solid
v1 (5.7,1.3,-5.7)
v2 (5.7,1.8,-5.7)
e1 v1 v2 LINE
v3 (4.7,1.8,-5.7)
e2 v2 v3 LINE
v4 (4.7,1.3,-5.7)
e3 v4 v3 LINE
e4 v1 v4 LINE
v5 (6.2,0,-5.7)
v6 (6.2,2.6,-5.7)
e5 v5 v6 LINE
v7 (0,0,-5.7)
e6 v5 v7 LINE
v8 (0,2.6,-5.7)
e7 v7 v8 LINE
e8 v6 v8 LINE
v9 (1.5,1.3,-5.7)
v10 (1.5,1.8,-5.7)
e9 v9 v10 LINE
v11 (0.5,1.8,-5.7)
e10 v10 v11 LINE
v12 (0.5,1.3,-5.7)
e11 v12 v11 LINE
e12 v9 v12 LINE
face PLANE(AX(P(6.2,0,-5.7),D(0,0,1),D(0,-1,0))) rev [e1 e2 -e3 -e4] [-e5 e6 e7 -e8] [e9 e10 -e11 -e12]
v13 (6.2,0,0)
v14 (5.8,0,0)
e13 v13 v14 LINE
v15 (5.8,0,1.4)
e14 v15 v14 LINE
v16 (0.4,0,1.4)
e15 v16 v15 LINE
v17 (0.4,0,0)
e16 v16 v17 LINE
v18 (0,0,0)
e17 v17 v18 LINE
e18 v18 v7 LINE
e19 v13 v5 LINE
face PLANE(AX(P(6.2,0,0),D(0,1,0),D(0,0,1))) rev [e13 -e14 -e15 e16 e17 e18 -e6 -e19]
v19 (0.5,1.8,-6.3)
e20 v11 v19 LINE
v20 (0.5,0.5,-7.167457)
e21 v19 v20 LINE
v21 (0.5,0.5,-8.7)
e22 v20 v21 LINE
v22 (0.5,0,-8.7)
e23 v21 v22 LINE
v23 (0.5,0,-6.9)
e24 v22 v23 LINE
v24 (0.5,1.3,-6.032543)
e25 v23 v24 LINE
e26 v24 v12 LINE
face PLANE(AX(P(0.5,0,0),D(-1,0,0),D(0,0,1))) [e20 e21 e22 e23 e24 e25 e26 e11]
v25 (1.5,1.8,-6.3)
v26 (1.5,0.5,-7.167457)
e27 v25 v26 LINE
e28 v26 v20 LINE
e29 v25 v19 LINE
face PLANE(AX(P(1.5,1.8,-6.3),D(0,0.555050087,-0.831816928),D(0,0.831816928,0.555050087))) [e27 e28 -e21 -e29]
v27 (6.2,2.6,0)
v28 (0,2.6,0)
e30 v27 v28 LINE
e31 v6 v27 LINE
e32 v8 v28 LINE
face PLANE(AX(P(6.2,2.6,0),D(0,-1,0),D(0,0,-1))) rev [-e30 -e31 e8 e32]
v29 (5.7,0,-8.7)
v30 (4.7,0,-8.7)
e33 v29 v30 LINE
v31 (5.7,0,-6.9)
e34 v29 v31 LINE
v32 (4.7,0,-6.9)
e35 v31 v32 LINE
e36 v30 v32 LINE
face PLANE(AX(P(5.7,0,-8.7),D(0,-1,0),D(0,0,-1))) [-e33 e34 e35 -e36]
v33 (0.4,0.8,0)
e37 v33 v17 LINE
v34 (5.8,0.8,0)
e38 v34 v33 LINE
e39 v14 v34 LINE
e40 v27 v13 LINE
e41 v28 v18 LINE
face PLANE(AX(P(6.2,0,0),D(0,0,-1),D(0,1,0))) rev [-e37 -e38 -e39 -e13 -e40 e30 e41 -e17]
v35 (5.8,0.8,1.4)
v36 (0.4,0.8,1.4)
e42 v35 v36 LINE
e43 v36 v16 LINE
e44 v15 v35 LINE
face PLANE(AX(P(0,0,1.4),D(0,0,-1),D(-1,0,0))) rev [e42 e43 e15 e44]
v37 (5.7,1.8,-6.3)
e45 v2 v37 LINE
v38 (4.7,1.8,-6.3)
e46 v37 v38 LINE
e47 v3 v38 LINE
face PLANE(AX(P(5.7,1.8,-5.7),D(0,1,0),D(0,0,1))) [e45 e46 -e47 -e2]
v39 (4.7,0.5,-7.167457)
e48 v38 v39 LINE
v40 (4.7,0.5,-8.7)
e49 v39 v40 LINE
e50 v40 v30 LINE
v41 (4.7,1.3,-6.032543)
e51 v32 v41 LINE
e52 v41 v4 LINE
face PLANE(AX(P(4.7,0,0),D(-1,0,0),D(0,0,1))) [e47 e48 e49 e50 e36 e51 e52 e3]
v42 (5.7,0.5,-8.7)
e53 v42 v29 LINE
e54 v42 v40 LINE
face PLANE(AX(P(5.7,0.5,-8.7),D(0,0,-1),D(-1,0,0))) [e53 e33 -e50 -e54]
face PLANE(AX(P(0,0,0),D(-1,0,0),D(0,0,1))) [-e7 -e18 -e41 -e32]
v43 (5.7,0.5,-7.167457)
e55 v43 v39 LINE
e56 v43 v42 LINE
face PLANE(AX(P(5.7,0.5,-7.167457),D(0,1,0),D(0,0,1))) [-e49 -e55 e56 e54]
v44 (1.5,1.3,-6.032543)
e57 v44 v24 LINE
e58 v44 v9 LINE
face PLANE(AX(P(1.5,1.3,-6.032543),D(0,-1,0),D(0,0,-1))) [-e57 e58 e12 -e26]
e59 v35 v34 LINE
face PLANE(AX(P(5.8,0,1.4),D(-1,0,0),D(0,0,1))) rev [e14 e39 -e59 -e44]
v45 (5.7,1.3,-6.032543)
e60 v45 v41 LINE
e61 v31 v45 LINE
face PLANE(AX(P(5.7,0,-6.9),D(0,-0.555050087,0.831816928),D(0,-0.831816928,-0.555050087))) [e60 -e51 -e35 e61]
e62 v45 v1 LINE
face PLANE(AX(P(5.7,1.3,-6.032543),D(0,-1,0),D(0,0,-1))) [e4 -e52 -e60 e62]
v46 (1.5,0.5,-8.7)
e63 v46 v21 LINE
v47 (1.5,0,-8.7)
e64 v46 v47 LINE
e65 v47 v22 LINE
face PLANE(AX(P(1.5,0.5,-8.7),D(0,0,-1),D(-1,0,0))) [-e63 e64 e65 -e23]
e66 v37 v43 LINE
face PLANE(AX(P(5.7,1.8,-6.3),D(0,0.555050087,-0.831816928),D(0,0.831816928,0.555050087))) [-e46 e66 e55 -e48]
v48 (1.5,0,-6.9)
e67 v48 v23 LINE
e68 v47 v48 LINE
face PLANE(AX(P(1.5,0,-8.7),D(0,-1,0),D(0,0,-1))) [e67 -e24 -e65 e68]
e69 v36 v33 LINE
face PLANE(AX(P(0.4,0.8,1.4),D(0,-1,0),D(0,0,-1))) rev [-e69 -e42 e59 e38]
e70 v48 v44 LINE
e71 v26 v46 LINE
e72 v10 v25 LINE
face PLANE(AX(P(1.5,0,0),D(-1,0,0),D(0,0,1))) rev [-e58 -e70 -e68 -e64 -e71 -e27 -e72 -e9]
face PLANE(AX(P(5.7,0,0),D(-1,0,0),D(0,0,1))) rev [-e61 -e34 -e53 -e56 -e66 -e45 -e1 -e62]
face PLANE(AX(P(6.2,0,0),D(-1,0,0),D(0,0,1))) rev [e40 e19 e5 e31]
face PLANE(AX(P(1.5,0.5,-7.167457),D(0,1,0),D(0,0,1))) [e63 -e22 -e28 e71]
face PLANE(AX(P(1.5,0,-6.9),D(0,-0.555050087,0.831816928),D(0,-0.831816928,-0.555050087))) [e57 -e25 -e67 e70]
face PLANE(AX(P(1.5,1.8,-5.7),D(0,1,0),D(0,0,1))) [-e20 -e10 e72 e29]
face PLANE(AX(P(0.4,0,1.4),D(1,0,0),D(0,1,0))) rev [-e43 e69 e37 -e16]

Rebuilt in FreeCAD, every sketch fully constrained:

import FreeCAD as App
import Part
import Sketcher
from FreeCAD import Vector

doc = App.newDocument("Part")
body = doc.addObject("PartDesign::Body", "Body")

# Sketch on YZ plane
sketch1 = body.newObject("Sketcher::SketchObject", "Sketch")
sketch1.AttachmentSupport = (doc.getObject("YZ_Plane"), [""])
sketch1.MapMode = "FlatFace"
sketch1.addGeometry(Part.LineSegment(Vector(2.6, 0, 0), Vector(0, 0, 0)), False)
sketch1.addGeometry(Part.LineSegment(Vector(0, 0, 0), Vector(0, -5.7, 0)), False)
sketch1.addGeometry(Part.LineSegment(Vector(0, -5.7, 0), Vector(2.6, -5.7, 0)), False)
sketch1.addGeometry(Part.LineSegment(Vector(2.6, -5.7, 0), Vector(2.6, 0, 0)), False)
sketch1.addConstraint(Sketcher.Constraint("Coincident", 0, 2, 1, 1))
sketch1.addConstraint(Sketcher.Constraint("Coincident", 1, 2, 2, 1))
sketch1.addConstraint(Sketcher.Constraint("Coincident", 2, 2, 3, 1))
sketch1.addConstraint(Sketcher.Constraint("Coincident", 3, 2, 0, 1))
sketch1.addConstraint(Sketcher.Constraint("Horizontal", 0))
sketch1.addConstraint(Sketcher.Constraint("Vertical", 1))
sketch1.addConstraint(Sketcher.Constraint("Horizontal", 2))
sketch1.addConstraint(Sketcher.Constraint("Vertical", 3))
sketch1.addConstraint(Sketcher.Constraint("Coincident", 0, 2, -1, 1))
sketch1.addConstraint(Sketcher.Constraint("DistanceX", 0, 2, 0, 1, 2.6))
sketch1.addConstraint(Sketcher.Constraint("DistanceY", 1, 2, 1, 1, 5.7))
pad1 = body.newObject("PartDesign::Pad", "Pad")
pad1.Profile = sketch1
pad1.Length = 6.2

# Sketch on XY plane
sketch2 = body.newObject("Sketcher::SketchObject", "Sketch001")
sketch2.AttachmentSupport = (doc.getObject("XY_Plane"), [""])
sketch2.MapMode = "FlatFace"
sketch2.addGeometry(Part.LineSegment(Vector(0.4, 0.8, 0), Vector(0.4, 0, 0)), False)
sketch2.addGeometry(Part.LineSegment(Vector(0.4, 0, 0), Vector(5.8, 0, 0)), False)
sketch2.addGeometry(Part.LineSegment(Vector(5.8, 0, 0), Vector(5.8, 0.8, 0)), False)
sketch2.addGeometry(Part.LineSegment(Vector(5.8, 0.8, 0), Vector(0.4, 0.8, 0)), False)
sketch2.addConstraint(Sketcher.Constraint("Coincident", 0, 2, 1, 1))
sketch2.addConstraint(Sketcher.Constraint("Coincident", 1, 2, 2, 1))
sketch2.addConstraint(Sketcher.Constraint("Coincident", 2, 2, 3, 1))
sketch2.addConstraint(Sketcher.Constraint("Coincident", 3, 2, 0, 1))
sketch2.addConstraint(Sketcher.Constraint("Vertical", 0))
sketch2.addConstraint(Sketcher.Constraint("Horizontal", 1))
sketch2.addConstraint(Sketcher.Constraint("Vertical", 2))
sketch2.addConstraint(Sketcher.Constraint("Horizontal", 3))
sketch2.addConstraint(Sketcher.Constraint("PointOnObject", 0, 2, -1))
sketch2.addConstraint(Sketcher.Constraint("DistanceX", 1, 1, 1, 2, 5.4))
sketch2.addConstraint(Sketcher.Constraint("DistanceY", 0, 2, 0, 1, 0.8))
sketch2.addConstraint(Sketcher.Constraint("DistanceX", -1, 1, 0, 2, 0.4))
pad2 = body.newObject("PartDesign::Pad", "Pad001")
pad2.Profile = sketch2
pad2.Length = 1.4

# Sketch on YZ plane
sketch3 = body.newObject("Sketcher::SketchObject", "Sketch002")
sketch3.AttachmentSupport = (doc.getObject("YZ_Plane"), [""])
sketch3.MapMode = "FlatFace"
sketch3.AttachmentOffset = App.Placement(Vector(0, 0, 0.5), App.Rotation())
sketch3.addGeometry(Part.LineSegment(Vector(1.8, -5.7, 0), Vector(1.8, -6.3, 0)), False)
sketch3.addGeometry(Part.LineSegment(Vector(1.8, -6.3, 0), Vector(0.5, -7.17, 0)), False)
sketch3.addGeometry(Part.LineSegment(Vector(0.5, -7.17, 0), Vector(0.5, -8.7, 0)), False)
sketch3.addGeometry(Part.LineSegment(Vector(0.5, -8.7, 0), Vector(0, -8.7, 0)), False)
sketch3.addGeometry(Part.LineSegment(Vector(0, -8.7, 0), Vector(0, -6.9, 0)), False)
sketch3.addGeometry(Part.LineSegment(Vector(0, -6.9, 0), Vector(1.3, -6.03, 0)), False)
sketch3.addGeometry(Part.LineSegment(Vector(1.3, -6.03, 0), Vector(1.3, -5.7, 0)), False)
sketch3.addGeometry(Part.LineSegment(Vector(1.3, -5.7, 0), Vector(1.8, -5.7, 0)), False)
sketch3.addConstraint(Sketcher.Constraint("Coincident", 0, 2, 1, 1))
sketch3.addConstraint(Sketcher.Constraint("Coincident", 1, 2, 2, 1))
sketch3.addConstraint(Sketcher.Constraint("Coincident", 2, 2, 3, 1))
sketch3.addConstraint(Sketcher.Constraint("Coincident", 3, 2, 4, 1))
sketch3.addConstraint(Sketcher.Constraint("Coincident", 4, 2, 5, 1))
sketch3.addConstraint(Sketcher.Constraint("Coincident", 5, 2, 6, 1))
sketch3.addConstraint(Sketcher.Constraint("Coincident", 6, 2, 7, 1))
sketch3.addConstraint(Sketcher.Constraint("Coincident", 7, 2, 0, 1))
sketch3.addConstraint(Sketcher.Constraint("Vertical", 0))
sketch3.addConstraint(Sketcher.Constraint("Vertical", 2))
sketch3.addConstraint(Sketcher.Constraint("Horizontal", 3))
sketch3.addConstraint(Sketcher.Constraint("Vertical", 4))
sketch3.addConstraint(Sketcher.Constraint("Vertical", 6))
sketch3.addConstraint(Sketcher.Constraint("Horizontal", 7))
sketch3.addConstraint(Sketcher.Constraint("PointOnObject", 3, 2, -2))
sketch3.addConstraint(Sketcher.Constraint("Parallel", 1, 5))
sketch3.addConstraint(Sketcher.Constraint("Equal", 3, 7))
sketch3.addConstraint(Sketcher.Constraint("DistanceX", 3, 2, 3, 1, 0.5))
sketch3.addConstraint(Sketcher.Constraint("DistanceY", 0, 2, 0, 1, 0.6))
sketch3.addConstraint(Sketcher.Constraint("DistanceY", 4, 1, 4, 2, 1.8))
sketch3.addConstraint(Sketcher.Constraint("DistanceY", 2, 2, 6, 2, 3.0))
sketch3.addConstraint(Sketcher.Constraint("DistanceX", -1, 1, 0, 2, 1.8))
sketch3.addConstraint(Sketcher.Constraint("DistanceY", 0, 2, -1, 1, 6.3))
sketch3.addConstraint(Sketcher.Constraint("DistanceY", 2, 2, 2, 1, 1.532543))
pad3 = body.newObject("PartDesign::Pad", "Pad002")
pad3.Profile = sketch3
pad3.Length = 1
doc.recompute()

linearpattern = body.newObject("PartDesign::LinearPattern", "LinearPattern")
linearpattern.Originals = [pad3]
linearpattern.Direction = (doc.getObject("X_Axis"), [""])
linearpattern.Mode = "offset"
linearpattern.Offset = 4.2
linearpattern.Occurrences = 2
body.Tip = linearpattern

doc.recompute()
